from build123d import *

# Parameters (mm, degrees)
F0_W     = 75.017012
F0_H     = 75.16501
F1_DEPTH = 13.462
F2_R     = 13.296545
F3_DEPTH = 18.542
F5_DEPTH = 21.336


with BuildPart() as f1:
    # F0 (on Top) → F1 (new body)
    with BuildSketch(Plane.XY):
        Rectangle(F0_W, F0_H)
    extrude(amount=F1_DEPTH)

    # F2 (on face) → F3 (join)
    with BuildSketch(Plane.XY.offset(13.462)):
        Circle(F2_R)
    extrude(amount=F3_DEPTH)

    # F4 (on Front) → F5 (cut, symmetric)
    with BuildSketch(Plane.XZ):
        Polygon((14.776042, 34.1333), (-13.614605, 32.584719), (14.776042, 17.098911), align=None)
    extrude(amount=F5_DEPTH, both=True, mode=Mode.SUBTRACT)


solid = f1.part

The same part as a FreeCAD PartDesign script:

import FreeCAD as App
import Part
import Sketcher
from FreeCAD import Vector
Q = App.Units.Quantity


def add_polygon(sketch, points):
    """Adds a closed chain of lines whose ends are joined by coincident constraints."""
    first, n = sketch.GeometryCount, len(points)
    for a, b in zip(points, points[1:] + points[:1]):
        sketch.addGeometry(Part.LineSegment(App.Vector(*a, 0), App.Vector(*b, 0)), False)
    for i in range(n):
        sketch.addConstraint(Sketcher.Constraint("Coincident", first + i, 2, first + (i + 1) % n, 1))

doc = App.newDocument("Part")
body = doc.addObject("PartDesign::Body", "Body")

sketch1 = doc.addObject("Sketcher::SketchObject", "Sketch")
body.addObject(sketch1)
sketch1.AttachmentSupport = (doc.XY_Plane, [""])
sketch1.MapMode = "FlatFace"
add_polygon(sketch1, [(-38, 38), (-38, -38), (38, -38), (38, 38)])
sketch1.addConstraint(Sketcher.Constraint("Vertical", 0))
sketch1.addConstraint(Sketcher.Constraint("Horizontal", 1))
sketch1.addConstraint(Sketcher.Constraint("Vertical", 2))
sketch1.addConstraint(Sketcher.Constraint("Horizontal", 3))
sketch1.addConstraint(Sketcher.Constraint("Symmetric", 0, 2, 2, 2, -1, 1))
sketch1.addConstraint(Sketcher.Constraint("DistanceX", 1, 1, 1, 2, 75.017012))
sketch1.addConstraint(Sketcher.Constraint("DistanceY", 0, 2, 0, 1, 75.16501))
pad1 = doc.addObject("PartDesign::Pad", "Pad")
body.addObject(pad1)
pad1.Profile = sketch1
pad1.Length = Q("0.53 in")

sketch2 = doc.addObject("Sketcher::SketchObject", "Sketch001")
body.addObject(sketch2)
sketch2.AttachmentSupport = (doc.XY_Plane, [""])
sketch2.MapMode = "FlatFace"
sketch2.AttachmentOffset = App.Placement(Vector(0, 0, 0.53 * 25.4), App.Rotation())
sketch2.addGeometry(Part.Circle(Vector(0, 0, 0), Vector(0, 0, 1), 13), False)
sketch2.addConstraint(Sketcher.Constraint("Coincident", 0, 3, -1, 1))
sketch2.addConstraint(Sketcher.Constraint("Diameter", 0, 26.59309))
pad2 = doc.addObject("PartDesign::Pad", "Pad001")
body.addObject(pad2)
pad2.Profile = sketch2
pad2.Length = Q("0.73 in")

sketch3 = doc.addObject("Sketcher::SketchObject", "Sketch002")
body.addObject(sketch3)
sketch3.AttachmentSupport = (doc.XZ_Plane, [""])
sketch3.MapMode = "FlatFace"
add_polygon(sketch3, [(15, 34), (-14, 33), (15, 17)])
sketch3.addConstraint(Sketcher.Constraint("Vertical", 2))
sketch3.addConstraint(Sketcher.Constraint("DistanceY", 2, 1, 2, 2, 17.034389))
sketch3.addConstraint(Sketcher.Constraint("DistanceY", -1, 1, 2, 2, 34.1333))
sketch3.addConstraint(Sketcher.Constraint("Distance", 0, 28.43285))
sketch3.addConstraint(Sketcher.Constraint("DistanceY", -1, 1, 0, 2, 32.584719))
sketch3.addConstraint(Sketcher.Constraint("DistanceX", 0, 2, -1, 1, 13.614605))
pocket1 = doc.addObject("PartDesign::Pocket", "Pocket")
body.addObject(pocket1)
pocket1.Profile = sketch3
pocket1.Length = Q("1.68 in")
pocket1.Midplane = True

doc.recompute()
